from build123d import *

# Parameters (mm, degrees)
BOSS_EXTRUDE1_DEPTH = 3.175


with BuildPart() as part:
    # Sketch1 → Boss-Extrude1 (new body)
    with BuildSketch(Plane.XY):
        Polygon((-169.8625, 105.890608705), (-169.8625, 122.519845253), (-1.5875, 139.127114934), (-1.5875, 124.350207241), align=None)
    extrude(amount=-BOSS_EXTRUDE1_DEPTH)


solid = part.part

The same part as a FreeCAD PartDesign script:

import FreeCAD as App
import Part
import Sketcher

V = App.Vector
Q = App.Units.Quantity

doc = App.newDocument("Part")
body = doc.addObject("PartDesign::Body", "Body")

sketch1 = doc.addObject("Sketcher::SketchObject", "Sketch")
body.addObject(sketch1)
sketch1.AttachmentSupport = (doc.XY_Plane, [""])
sketch1.MapMode = "FlatFace"
sketch1.addGeometry([
    Part.LineSegment(V(-170, 123, 0), V(-170, 106, 0)),
    Part.LineSegment(V(-170, 106, 0), V(-2, 124, 0)),
    Part.LineSegment(V(-2, 124, 0), V(-2, 139, 0)),
    Part.LineSegment(V(-2, 139, 0), V(-170, 123, 0)),
], False)
sketch1.addConstraint([
    Sketcher.Constraint("Coincident", 0, 2, 1, 1),
    Sketcher.Constraint("Coincident", 1, 2, 2, 1),
    Sketcher.Constraint("Coincident", 2, 2, 3, 1),
    Sketcher.Constraint("Coincident", 3, 2, 0, 1),
    Sketcher.Constraint("Vertical", 0),
    Sketcher.Constraint("Vertical", 2),
    Sketcher.Constraint("DistanceX", 0, 2, -1, 1, Q("6.6875 in")),
    Sketcher.Constraint("DistanceX", 1, 2, -1, 1, Q("0.0625 in")),
    Sketcher.Constraint("DistanceY", 0, 2, 1, 2, Q("18.459599 mm")),
    Sketcher.Constraint("Distance", 3, Q("169.09251 mm")),
    Sketcher.Constraint("DistanceY", 0, 2, 0, 1, Q("16.629237 mm")),
    Sketcher.Constraint("DistanceY", -1, 1, 0, 2, Q("105.890609 mm")),
])
pad1 = doc.addObject("PartDesign::Pad", "Pad")
body.addObject(pad1)
pad1.Profile = sketch1
pad1.Length = Q("0.125 in")
pad1.Reversed = True

doc.recompute()
